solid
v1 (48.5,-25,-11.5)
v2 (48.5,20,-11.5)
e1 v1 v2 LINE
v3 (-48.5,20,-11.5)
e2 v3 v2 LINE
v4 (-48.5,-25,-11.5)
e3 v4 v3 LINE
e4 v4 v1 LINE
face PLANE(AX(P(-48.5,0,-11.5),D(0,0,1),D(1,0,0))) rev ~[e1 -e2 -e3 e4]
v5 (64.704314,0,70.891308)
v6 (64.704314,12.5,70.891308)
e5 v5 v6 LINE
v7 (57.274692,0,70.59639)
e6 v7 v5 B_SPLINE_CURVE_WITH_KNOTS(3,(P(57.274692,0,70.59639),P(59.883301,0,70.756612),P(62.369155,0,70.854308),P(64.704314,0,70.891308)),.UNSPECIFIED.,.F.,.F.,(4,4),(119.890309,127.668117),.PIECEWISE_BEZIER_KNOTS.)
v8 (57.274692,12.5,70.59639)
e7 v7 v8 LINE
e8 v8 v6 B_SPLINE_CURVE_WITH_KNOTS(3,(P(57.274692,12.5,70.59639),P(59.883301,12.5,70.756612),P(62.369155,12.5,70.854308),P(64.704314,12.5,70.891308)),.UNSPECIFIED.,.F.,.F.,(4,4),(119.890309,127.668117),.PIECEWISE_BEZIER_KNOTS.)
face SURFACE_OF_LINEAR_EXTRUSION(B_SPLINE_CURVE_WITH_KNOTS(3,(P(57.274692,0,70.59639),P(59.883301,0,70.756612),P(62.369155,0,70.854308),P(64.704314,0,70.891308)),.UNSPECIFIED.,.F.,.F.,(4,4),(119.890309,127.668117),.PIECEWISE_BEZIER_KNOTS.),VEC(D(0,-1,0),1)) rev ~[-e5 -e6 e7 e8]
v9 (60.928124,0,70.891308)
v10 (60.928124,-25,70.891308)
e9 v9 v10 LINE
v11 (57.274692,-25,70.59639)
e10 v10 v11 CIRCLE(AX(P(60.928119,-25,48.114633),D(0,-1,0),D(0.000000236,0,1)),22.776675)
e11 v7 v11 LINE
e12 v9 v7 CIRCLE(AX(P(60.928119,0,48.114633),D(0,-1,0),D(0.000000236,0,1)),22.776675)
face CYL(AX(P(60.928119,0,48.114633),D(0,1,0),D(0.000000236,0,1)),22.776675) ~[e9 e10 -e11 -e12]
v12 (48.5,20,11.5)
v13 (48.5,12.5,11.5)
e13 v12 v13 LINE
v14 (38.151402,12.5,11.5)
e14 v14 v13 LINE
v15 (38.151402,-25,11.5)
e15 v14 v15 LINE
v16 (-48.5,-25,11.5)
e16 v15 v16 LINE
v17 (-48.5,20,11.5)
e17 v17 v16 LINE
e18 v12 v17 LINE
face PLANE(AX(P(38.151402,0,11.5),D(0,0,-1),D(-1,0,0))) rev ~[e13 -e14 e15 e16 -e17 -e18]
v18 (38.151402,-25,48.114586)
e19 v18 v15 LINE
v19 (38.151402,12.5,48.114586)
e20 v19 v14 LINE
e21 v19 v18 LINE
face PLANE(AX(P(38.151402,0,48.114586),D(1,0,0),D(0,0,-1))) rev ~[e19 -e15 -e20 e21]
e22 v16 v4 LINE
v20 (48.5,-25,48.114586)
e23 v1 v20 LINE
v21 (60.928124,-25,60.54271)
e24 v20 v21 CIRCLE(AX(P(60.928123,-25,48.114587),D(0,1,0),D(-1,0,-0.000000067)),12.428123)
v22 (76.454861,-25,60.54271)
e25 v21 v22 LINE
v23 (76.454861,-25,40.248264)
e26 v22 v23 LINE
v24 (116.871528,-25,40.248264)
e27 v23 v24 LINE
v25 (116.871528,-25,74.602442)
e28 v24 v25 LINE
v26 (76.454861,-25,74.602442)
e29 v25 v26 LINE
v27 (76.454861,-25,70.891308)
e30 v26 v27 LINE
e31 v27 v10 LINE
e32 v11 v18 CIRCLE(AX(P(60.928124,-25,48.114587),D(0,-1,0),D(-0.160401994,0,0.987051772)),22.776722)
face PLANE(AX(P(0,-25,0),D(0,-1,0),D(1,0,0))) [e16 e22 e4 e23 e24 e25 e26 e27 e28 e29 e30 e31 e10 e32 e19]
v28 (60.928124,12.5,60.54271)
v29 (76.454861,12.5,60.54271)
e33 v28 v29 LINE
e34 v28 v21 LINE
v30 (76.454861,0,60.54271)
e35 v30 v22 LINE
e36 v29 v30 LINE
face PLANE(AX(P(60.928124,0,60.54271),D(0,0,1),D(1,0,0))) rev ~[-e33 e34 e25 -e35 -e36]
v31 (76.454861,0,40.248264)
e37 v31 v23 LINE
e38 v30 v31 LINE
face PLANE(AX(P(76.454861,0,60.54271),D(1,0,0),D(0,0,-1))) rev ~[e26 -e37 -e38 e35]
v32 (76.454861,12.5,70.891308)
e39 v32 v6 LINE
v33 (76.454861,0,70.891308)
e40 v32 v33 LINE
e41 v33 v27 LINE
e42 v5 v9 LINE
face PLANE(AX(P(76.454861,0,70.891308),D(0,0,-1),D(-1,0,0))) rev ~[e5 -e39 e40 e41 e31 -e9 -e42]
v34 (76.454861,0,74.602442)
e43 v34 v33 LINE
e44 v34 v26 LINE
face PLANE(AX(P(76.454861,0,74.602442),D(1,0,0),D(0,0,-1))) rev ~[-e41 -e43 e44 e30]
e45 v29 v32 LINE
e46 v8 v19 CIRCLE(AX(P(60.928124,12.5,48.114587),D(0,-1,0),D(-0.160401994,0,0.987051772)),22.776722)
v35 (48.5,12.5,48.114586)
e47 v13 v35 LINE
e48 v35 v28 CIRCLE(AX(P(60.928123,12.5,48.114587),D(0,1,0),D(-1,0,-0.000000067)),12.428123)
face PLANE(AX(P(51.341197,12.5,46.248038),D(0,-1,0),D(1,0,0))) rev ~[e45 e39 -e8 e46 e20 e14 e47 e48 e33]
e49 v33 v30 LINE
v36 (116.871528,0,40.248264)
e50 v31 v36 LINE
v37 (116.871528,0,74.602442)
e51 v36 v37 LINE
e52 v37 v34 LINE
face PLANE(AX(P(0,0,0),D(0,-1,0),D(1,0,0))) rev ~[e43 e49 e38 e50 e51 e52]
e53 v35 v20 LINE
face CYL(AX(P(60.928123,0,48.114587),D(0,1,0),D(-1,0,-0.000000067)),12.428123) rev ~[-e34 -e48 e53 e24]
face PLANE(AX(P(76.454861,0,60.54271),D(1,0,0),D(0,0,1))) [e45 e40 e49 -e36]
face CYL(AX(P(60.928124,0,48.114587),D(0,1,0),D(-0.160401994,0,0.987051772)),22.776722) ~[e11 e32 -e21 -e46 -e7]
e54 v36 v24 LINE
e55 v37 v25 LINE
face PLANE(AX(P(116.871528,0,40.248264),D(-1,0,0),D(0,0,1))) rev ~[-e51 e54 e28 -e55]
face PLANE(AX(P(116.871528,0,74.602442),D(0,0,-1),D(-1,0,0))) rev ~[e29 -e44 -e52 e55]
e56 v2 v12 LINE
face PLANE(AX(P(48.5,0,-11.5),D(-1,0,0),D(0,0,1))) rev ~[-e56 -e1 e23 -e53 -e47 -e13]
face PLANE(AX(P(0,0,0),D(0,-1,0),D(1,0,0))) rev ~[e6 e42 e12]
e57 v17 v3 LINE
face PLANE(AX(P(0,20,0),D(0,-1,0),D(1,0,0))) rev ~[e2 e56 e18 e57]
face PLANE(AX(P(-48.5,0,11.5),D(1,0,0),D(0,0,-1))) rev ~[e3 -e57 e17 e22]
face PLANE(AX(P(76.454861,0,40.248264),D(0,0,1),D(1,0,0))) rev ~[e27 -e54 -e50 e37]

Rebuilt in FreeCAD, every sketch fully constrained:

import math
import FreeCAD as App
import Part
import Sketcher
from FreeCAD import Vector
Q = App.Units.Quantity


def add_polygon(sketch, points):
    """Adds a closed chain of lines whose ends are joined by coincident constraints."""
    first, n = sketch.GeometryCount, len(points)
    for a, b in zip(points, points[1:] + points[:1]):
        sketch.addGeometry(Part.LineSegment(App.Vector(*a, 0), App.Vector(*b, 0)), False)
    for i in range(n):
        sketch.addConstraint(Sketcher.Constraint("Coincident", first + i, 2, first + (i + 1) % n, 1))

doc = App.newDocument("Part")
body = doc.addObject("PartDesign::Body", "Body")

# Sketch on XZ plane
sketch1 = body.newObject("Sketcher::SketchObject", "Sketch")
sketch1.AttachmentSupport = (doc.getObject("XZ_Plane"), [""])
sketch1.MapMode = "FlatFace"
add_polygon(sketch1, [(48, -12), (48, 12), (-48, 12), (-48, -12)])  # lines 0-3
sketch1.addConstraint([
    Sketcher.Constraint("Vertical", 0),
    Sketcher.Constraint("Horizontal", 1),
    Sketcher.Constraint("Vertical", 2),
    Sketcher.Constraint("Horizontal", 3),
    Sketcher.Constraint("Symmetric", 0, 2, 2, 2, -1, 1),
    Sketcher.Constraint("DistanceX", 1, 2, 1, 1, Q("97 mm")),
    Sketcher.Constraint("DistanceY", 0, 1, 0, 2, Q("23 mm")),
])
pad1 = body.newObject("PartDesign::Pad", "Pad")
pad1.Profile = sketch1
pad1.Length = 40
pad1.Midplane = True

# Sketch on XZ plane
sketch2 = body.newObject("Sketcher::SketchObject", "Sketch001")
sketch2.AttachmentSupport = (doc.getObject("XZ_Plane"), [""])
sketch2.MapMode = "FlatFace"
sketch2.addGeometry([
    Part.LineSegment(Vector(38.151402, 11.5, 0), Vector(48.5, 11.5, 0)),  # 0
    Part.LineSegment(Vector(48.5, 11.5, 0), Vector(48.5, 48.114586, 0)),  # 1
    Part.ArcOfCircle(Part.Circle(Vector(60.928123, 48.114587, 0), Vector(0, 0, 1), 12.428123), math.radians(89.999996), math.radians(180.000004)),  # 2
    Part.LineSegment(Vector(60.928124, 60.54271, 0), Vector(76.454861, 60.54271, 0)),  # 3
    Part.LineSegment(Vector(76.454861, 60.54271, 0), Vector(76.454861, 70.891308, 0)),  # 4
    Part.LineSegment(Vector(76.454861, 70.891308, 0), Vector(64.704314, 70.891308, 0)),  # 5
    Part.BSplineCurve([Vector(57.274692, 70.59639, 0), Vector(59.883301, 70.756612, 0), Vector(62.369155, 70.854308, 0), Vector(64.704314, 70.891308, 0)], [4, 4], [119.890309, 127.668117], False, 3, [1, 1, 1, 1], False),  # 6
    Part.ArcOfCircle(Part.Circle(Vector(60.928124, 48.114587, 0), Vector(0, 0, 1), 22.776722), math.radians(99.23023), math.radians(180.000002)),  # 7
    Part.LineSegment(Vector(38.151402, 48.114586, 0), Vector(38.151402, 11.5, 0)),  # 8
], False)
sketch2.addConstraint([
    Sketcher.Constraint("Block", 6),
    Sketcher.Constraint("Coincident", 0, 2, 1, 1),
    Sketcher.Constraint("Tangent", 1, 2, 2, 2),
    Sketcher.Constraint("Tangent", 2, 1, 3, 1),
    Sketcher.Constraint("Coincident", 3, 2, 4, 1),
    Sketcher.Constraint("Coincident", 4, 2, 5, 1),
    Sketcher.Constraint("Coincident", 5, 2, 6, 2),
    Sketcher.Constraint("Coincident", 6, 1, 7, 1),
    Sketcher.Constraint("Tangent", 7, 2, 8, 1),
    Sketcher.Constraint("Coincident", 8, 2, 0, 1),
    Sketcher.Constraint("Horizontal", 0),
    Sketcher.Constraint("Vertical", 1),
    Sketcher.Constraint("Horizontal", 3),
    Sketcher.Constraint("Vertical", 4),
    Sketcher.Constraint("Horizontal", 5),
    Sketcher.Constraint("Vertical", 8),
    Sketcher.Constraint("Coincident", 7, 3, 2, 3),
    Sketcher.Constraint("Equal", 0, 4),
    Sketcher.Constraint("DistanceX", -1, 1, 0, 2, Q("48.5 mm")),
    Sketcher.Constraint("DistanceY", -1, 1, 0, 2, Q("11.5 mm")),
    Sketcher.Constraint("Radius", 7, Q("22.776722 mm")),
    Sketcher.Constraint("DistanceX", 3, 1, 3, 2, Q("15.526737 mm")),
])
pad2 = body.newObject("PartDesign::Pad", "Pad001")
pad2.Profile = sketch2
pad2.Length = 25
pad2.Midplane = True

# Sketch on XZ plane
sketch3 = body.newObject("Sketcher::SketchObject", "Sketch002")
sketch3.AttachmentSupport = (doc.getObject("XZ_Plane"), [""])
sketch3.MapMode = "FlatFace"
sketch3.addGeometry([
    Part.LineSegment(Vector(48.5, -11.5, 0), Vector(48.5, 48.114586, 0)),  # 0
    Part.ArcOfCircle(Part.Circle(Vector(60.928123, 48.114587, 0), Vector(0, 0, 1), 12.428123), math.radians(89.999996), math.radians(180.000004)),  # 1
    Part.LineSegment(Vector(60.928124, 60.54271, 0), Vector(76.454861, 60.54271, 0)),  # 2
    Part.LineSegment(Vector(76.454861, 60.54271, 0), Vector(76.454861, 40.248264, 0)),  # 3
    Part.LineSegment(Vector(76.454861, 40.248264, 0), Vector(116.871528, 40.248264, 0)),  # 4
    Part.LineSegment(Vector(116.871528, 40.248264, 0), Vector(116.871528, 74.602442, 0)),  # 5
    Part.LineSegment(Vector(116.871528, 74.602442, 0), Vector(76.454861, 74.602442, 0)),  # 6
    Part.LineSegment(Vector(76.454861, 74.602442, 0), Vector(76.454861, 70.891308, 0)),  # 7
    Part.LineSegment(Vector(76.454861, 70.891308, 0), Vector(60.928124, 70.891308, 0)),  # 8
    Part.ArcOfCircle(Part.Circle(Vector(60.928119, 48.114633, 0), Vector(0, 0, 1), 22.776675), math.radians(89.999986), math.radians(99.230237)),  # 9
    Part.ArcOfCircle(Part.Circle(Vector(60.928124, 48.114587, 0), Vector(0, 0, 1), 22.776722), math.radians(99.23023), math.radians(180.000002)),  # 10
    Part.LineSegment(Vector(38.151402, 48.114586, 0), Vector(38.151402, 11.5, 0)),  # 11
    Part.LineSegment(Vector(38.151402, 11.5, 0), Vector(-48.5, 11.5, 0)),  # 12
    Part.LineSegment(Vector(-48.5, 11.5, 0), Vector(-48.5, -11.5, 0)),  # 13
    Part.LineSegment(Vector(-48.5, -11.5, 0), Vector(48.5, -11.5, 0)),  # 14
], False)
sketch3.addConstraint([
    Sketcher.Constraint("Tangent", 0, 2, 1, 2),
    Sketcher.Constraint("Tangent", 1, 1, 2, 1),
    Sketcher.Constraint("Coincident", 2, 2, 3, 1),
    Sketcher.Constraint("Coincident", 3, 2, 4, 1),
    Sketcher.Constraint("Coincident", 4, 2, 5, 1),
    Sketcher.Constraint("Coincident", 5, 2, 6, 1),
    Sketcher.Constraint("Coincident", 6, 2, 7, 1),
    Sketcher.Constraint("Coincident", 7, 2, 8, 1),
    Sketcher.Constraint("Tangent", 8, 2, 9, 1),
    Sketcher.Constraint("Tangent", 9, 2, 10, 1),
    Sketcher.Constraint("Tangent", 10, 2, 11, 1),
    Sketcher.Constraint("Coincident", 11, 2, 12, 1),
    Sketcher.Constraint("Coincident", 12, 2, 13, 1),
    Sketcher.Constraint("Coincident", 13, 2, 14, 1),
    Sketcher.Constraint("Coincident", 14, 2, 0, 1),
    Sketcher.Constraint("Vertical", 0),
    Sketcher.Constraint("Horizontal", 2),
    Sketcher.Constraint("Vertical", 3),
    Sketcher.Constraint("Horizontal", 4),
    Sketcher.Constraint("Vertical", 5),
    Sketcher.Constraint("Horizontal", 6),
    Sketcher.Constraint("Vertical", 7),
    Sketcher.Constraint("Horizontal", 8),
    Sketcher.Constraint("Vertical", 11),
    Sketcher.Constraint("Horizontal", 12),
    Sketcher.Constraint("Vertical", 13),
    Sketcher.Constraint("Horizontal", 14),
    Sketcher.Constraint("Coincident", 10, 3, 1, 3),
    Sketcher.Constraint("Symmetric", 12, 2, 14, 2, -1, 1),
    Sketcher.Constraint("Vertical", 3, 2, 6, 2),
    Sketcher.Constraint("Vertical", 1, 1, 8, 2),
    Sketcher.Constraint("DistanceX", 14, 1, 14, 2, Q("97 mm")),
    Sketcher.Constraint("DistanceY", 13, 2, 13, 1, Q("23 mm")),
    Sketcher.Constraint("Radius", 10, Q("22.776722 mm")),
    Sketcher.Constraint("DistanceX", 12, 2, 12, 1, Q("86.651402 mm")),
    Sketcher.Constraint("DistanceX", 2, 1, 2, 2, Q("15.526737 mm")),
    Sketcher.Constraint("DistanceX", 4, 1, 4, 2, Q("40.416667 mm")),
    Sketcher.Constraint("DistanceY", 0, 1, 0, 2, Q("59.614586 mm")),
    Sketcher.Constraint("DistanceY", 3, 2, 3, 1, Q("20.294446 mm")),
    Sketcher.Constraint("DistanceY", 5, 1, 5, 2, Q("34.354178 mm")),
    Sketcher.Constraint("DistanceX", -1, 1, 9, 2, Q("57.274692 mm")),
])
pad3 = body.newObject("PartDesign::Pad", "Pad002")
pad3.Profile = sketch3
pad3.Length = 25

# Sketch on XZ plane
sketch4 = body.newObject("Sketcher::SketchObject", "Sketch003")
sketch4.AttachmentSupport = (doc.getObject("XZ_Plane"), [""])
sketch4.MapMode = "FlatFace"
sketch4.addGeometry([
    Part.LineSegment(Vector(48.5, -11.5, 0), Vector(48.5, 48.114586, 0)),  # 0
    Part.ArcOfCircle(Part.Circle(Vector(60.928123, 48.114587, 0), Vector(0, 0, 1), 12.428123), math.radians(89.999996), math.radians(180.000004)),  # 1
    Part.LineSegment(Vector(60.928124, 60.54271, 0), Vector(76.454861, 60.54271, 0)),  # 2
    Part.LineSegment(Vector(76.454861, 60.54271, 0), Vector(76.454861, 40.248264, 0)),  # 3
    Part.LineSegment(Vector(76.454861, 40.248264, 0), Vector(116.871528, 40.248264, 0)),  # 4
    Part.LineSegment(Vector(116.871528, 40.248264, 0), Vector(116.871528, 74.602442, 0)),  # 5
    Part.LineSegment(Vector(116.871528, 74.602442, 0), Vector(76.454861, 74.602442, 0)),  # 6
    Part.LineSegment(Vector(76.454861, 74.602442, 0), Vector(76.454861, 70.891308, 0)),  # 7
    Part.LineSegment(Vector(76.454861, 70.891308, 0), Vector(60.928124, 70.891308, 0)),  # 8
    Part.ArcOfCircle(Part.Circle(Vector(60.928119, 48.114633, 0), Vector(0, 0, 1), 22.776675), math.radians(89.999986), math.radians(99.230237)),  # 9
    Part.ArcOfCircle(Part.Circle(Vector(60.928124, 48.114587, 0), Vector(0, 0, 1), 22.776722), math.radians(99.23023), math.radians(180.000002)),  # 10
    Part.LineSegment(Vector(38.151402, 48.114586, 0), Vector(38.151402, 11.5, 0)),  # 11
    Part.LineSegment(Vector(38.151402, 11.5, 0), Vector(-48.5, 11.5, 0)),  # 12
    Part.LineSegment(Vector(-48.5, 11.5, 0), Vector(-48.5, -11.5, 0)),  # 13
    Part.LineSegment(Vector(-48.5, -11.5, 0), Vector(48.5, -11.5, 0)),  # 14
], False)
sketch4.addConstraint([
    Sketcher.Constraint("Tangent", 0, 2, 1, 2),
    Sketcher.Constraint("Tangent", 1, 1, 2, 1),
    Sketcher.Constraint("Coincident", 2, 2, 3, 1),
    Sketcher.Constraint("Coincident", 3, 2, 4, 1),
    Sketcher.Constraint("Coincident", 4, 2, 5, 1),
    Sketcher.Constraint("Coincident", 5, 2, 6, 1),
    Sketcher.Constraint("Coincident", 6, 2, 7, 1),
    Sketcher.Constraint("Coincident", 7, 2, 8, 1),
    Sketcher.Constraint("Tangent", 8, 2, 9, 1),
    Sketcher.Constraint("Tangent", 9, 2, 10, 1),
    Sketcher.Constraint("Tangent", 10, 2, 11, 1),
    Sketcher.Constraint("Coincident", 11, 2, 12, 1),
    Sketcher.Constraint("Coincident", 12, 2, 13, 1),
    Sketcher.Constraint("Coincident", 13, 2, 14, 1),
    Sketcher.Constraint("Coincident", 14, 2, 0, 1),
    Sketcher.Constraint("Vertical", 0),
    Sketcher.Constraint("Horizontal", 2),
    Sketcher.Constraint("Vertical", 3),
    Sketcher.Constraint("Horizontal", 4),
    Sketcher.Constraint("Vertical", 5),
    Sketcher.Constraint("Horizontal", 6),
    Sketcher.Constraint("Vertical", 7),
    Sketcher.Constraint("Horizontal", 8),
    Sketcher.Constraint("Vertical", 11),
    Sketcher.Constraint("Horizontal", 12),
    Sketcher.Constraint("Vertical", 13),
    Sketcher.Constraint("Horizontal", 14),
    Sketcher.Constraint("Coincident", 10, 3, 1, 3),
    Sketcher.Constraint("Symmetric", 12, 2, 14, 2, -1, 1),
    Sketcher.Constraint("Vertical", 3, 2, 6, 2),
    Sketcher.Constraint("Vertical", 1, 1, 8, 2),
    Sketcher.Constraint("DistanceX", 14, 1, 14, 2, Q("97 mm")),
    Sketcher.Constraint("DistanceY", 13, 2, 13, 1, Q("23 mm")),
    Sketcher.Constraint("Radius", 10, Q("22.776722 mm")),
    Sketcher.Constraint("DistanceX", 12, 2, 12, 1, Q("86.651402 mm")),
    Sketcher.Constraint("DistanceX", 2, 1, 2, 2, Q("15.526737 mm")),
    Sketcher.Constraint("DistanceX", 4, 1, 4, 2, Q("40.416667 mm")),
    Sketcher.Constraint("DistanceY", 0, 1, 0, 2, Q("59.614586 mm")),
    Sketcher.Constraint("DistanceY", 3, 2, 3, 1, Q("20.294446 mm")),
    Sketcher.Constraint("DistanceY", 5, 1, 5, 2, Q("34.354178 mm")),
    Sketcher.Constraint("DistanceX", -1, 1, 9, 2, Q("57.274692 mm")),
])
pad4 = body.newObject("PartDesign::Pad", "Pad003")
pad4.Profile = sketch4
pad4.Length = 25

doc.recompute()
